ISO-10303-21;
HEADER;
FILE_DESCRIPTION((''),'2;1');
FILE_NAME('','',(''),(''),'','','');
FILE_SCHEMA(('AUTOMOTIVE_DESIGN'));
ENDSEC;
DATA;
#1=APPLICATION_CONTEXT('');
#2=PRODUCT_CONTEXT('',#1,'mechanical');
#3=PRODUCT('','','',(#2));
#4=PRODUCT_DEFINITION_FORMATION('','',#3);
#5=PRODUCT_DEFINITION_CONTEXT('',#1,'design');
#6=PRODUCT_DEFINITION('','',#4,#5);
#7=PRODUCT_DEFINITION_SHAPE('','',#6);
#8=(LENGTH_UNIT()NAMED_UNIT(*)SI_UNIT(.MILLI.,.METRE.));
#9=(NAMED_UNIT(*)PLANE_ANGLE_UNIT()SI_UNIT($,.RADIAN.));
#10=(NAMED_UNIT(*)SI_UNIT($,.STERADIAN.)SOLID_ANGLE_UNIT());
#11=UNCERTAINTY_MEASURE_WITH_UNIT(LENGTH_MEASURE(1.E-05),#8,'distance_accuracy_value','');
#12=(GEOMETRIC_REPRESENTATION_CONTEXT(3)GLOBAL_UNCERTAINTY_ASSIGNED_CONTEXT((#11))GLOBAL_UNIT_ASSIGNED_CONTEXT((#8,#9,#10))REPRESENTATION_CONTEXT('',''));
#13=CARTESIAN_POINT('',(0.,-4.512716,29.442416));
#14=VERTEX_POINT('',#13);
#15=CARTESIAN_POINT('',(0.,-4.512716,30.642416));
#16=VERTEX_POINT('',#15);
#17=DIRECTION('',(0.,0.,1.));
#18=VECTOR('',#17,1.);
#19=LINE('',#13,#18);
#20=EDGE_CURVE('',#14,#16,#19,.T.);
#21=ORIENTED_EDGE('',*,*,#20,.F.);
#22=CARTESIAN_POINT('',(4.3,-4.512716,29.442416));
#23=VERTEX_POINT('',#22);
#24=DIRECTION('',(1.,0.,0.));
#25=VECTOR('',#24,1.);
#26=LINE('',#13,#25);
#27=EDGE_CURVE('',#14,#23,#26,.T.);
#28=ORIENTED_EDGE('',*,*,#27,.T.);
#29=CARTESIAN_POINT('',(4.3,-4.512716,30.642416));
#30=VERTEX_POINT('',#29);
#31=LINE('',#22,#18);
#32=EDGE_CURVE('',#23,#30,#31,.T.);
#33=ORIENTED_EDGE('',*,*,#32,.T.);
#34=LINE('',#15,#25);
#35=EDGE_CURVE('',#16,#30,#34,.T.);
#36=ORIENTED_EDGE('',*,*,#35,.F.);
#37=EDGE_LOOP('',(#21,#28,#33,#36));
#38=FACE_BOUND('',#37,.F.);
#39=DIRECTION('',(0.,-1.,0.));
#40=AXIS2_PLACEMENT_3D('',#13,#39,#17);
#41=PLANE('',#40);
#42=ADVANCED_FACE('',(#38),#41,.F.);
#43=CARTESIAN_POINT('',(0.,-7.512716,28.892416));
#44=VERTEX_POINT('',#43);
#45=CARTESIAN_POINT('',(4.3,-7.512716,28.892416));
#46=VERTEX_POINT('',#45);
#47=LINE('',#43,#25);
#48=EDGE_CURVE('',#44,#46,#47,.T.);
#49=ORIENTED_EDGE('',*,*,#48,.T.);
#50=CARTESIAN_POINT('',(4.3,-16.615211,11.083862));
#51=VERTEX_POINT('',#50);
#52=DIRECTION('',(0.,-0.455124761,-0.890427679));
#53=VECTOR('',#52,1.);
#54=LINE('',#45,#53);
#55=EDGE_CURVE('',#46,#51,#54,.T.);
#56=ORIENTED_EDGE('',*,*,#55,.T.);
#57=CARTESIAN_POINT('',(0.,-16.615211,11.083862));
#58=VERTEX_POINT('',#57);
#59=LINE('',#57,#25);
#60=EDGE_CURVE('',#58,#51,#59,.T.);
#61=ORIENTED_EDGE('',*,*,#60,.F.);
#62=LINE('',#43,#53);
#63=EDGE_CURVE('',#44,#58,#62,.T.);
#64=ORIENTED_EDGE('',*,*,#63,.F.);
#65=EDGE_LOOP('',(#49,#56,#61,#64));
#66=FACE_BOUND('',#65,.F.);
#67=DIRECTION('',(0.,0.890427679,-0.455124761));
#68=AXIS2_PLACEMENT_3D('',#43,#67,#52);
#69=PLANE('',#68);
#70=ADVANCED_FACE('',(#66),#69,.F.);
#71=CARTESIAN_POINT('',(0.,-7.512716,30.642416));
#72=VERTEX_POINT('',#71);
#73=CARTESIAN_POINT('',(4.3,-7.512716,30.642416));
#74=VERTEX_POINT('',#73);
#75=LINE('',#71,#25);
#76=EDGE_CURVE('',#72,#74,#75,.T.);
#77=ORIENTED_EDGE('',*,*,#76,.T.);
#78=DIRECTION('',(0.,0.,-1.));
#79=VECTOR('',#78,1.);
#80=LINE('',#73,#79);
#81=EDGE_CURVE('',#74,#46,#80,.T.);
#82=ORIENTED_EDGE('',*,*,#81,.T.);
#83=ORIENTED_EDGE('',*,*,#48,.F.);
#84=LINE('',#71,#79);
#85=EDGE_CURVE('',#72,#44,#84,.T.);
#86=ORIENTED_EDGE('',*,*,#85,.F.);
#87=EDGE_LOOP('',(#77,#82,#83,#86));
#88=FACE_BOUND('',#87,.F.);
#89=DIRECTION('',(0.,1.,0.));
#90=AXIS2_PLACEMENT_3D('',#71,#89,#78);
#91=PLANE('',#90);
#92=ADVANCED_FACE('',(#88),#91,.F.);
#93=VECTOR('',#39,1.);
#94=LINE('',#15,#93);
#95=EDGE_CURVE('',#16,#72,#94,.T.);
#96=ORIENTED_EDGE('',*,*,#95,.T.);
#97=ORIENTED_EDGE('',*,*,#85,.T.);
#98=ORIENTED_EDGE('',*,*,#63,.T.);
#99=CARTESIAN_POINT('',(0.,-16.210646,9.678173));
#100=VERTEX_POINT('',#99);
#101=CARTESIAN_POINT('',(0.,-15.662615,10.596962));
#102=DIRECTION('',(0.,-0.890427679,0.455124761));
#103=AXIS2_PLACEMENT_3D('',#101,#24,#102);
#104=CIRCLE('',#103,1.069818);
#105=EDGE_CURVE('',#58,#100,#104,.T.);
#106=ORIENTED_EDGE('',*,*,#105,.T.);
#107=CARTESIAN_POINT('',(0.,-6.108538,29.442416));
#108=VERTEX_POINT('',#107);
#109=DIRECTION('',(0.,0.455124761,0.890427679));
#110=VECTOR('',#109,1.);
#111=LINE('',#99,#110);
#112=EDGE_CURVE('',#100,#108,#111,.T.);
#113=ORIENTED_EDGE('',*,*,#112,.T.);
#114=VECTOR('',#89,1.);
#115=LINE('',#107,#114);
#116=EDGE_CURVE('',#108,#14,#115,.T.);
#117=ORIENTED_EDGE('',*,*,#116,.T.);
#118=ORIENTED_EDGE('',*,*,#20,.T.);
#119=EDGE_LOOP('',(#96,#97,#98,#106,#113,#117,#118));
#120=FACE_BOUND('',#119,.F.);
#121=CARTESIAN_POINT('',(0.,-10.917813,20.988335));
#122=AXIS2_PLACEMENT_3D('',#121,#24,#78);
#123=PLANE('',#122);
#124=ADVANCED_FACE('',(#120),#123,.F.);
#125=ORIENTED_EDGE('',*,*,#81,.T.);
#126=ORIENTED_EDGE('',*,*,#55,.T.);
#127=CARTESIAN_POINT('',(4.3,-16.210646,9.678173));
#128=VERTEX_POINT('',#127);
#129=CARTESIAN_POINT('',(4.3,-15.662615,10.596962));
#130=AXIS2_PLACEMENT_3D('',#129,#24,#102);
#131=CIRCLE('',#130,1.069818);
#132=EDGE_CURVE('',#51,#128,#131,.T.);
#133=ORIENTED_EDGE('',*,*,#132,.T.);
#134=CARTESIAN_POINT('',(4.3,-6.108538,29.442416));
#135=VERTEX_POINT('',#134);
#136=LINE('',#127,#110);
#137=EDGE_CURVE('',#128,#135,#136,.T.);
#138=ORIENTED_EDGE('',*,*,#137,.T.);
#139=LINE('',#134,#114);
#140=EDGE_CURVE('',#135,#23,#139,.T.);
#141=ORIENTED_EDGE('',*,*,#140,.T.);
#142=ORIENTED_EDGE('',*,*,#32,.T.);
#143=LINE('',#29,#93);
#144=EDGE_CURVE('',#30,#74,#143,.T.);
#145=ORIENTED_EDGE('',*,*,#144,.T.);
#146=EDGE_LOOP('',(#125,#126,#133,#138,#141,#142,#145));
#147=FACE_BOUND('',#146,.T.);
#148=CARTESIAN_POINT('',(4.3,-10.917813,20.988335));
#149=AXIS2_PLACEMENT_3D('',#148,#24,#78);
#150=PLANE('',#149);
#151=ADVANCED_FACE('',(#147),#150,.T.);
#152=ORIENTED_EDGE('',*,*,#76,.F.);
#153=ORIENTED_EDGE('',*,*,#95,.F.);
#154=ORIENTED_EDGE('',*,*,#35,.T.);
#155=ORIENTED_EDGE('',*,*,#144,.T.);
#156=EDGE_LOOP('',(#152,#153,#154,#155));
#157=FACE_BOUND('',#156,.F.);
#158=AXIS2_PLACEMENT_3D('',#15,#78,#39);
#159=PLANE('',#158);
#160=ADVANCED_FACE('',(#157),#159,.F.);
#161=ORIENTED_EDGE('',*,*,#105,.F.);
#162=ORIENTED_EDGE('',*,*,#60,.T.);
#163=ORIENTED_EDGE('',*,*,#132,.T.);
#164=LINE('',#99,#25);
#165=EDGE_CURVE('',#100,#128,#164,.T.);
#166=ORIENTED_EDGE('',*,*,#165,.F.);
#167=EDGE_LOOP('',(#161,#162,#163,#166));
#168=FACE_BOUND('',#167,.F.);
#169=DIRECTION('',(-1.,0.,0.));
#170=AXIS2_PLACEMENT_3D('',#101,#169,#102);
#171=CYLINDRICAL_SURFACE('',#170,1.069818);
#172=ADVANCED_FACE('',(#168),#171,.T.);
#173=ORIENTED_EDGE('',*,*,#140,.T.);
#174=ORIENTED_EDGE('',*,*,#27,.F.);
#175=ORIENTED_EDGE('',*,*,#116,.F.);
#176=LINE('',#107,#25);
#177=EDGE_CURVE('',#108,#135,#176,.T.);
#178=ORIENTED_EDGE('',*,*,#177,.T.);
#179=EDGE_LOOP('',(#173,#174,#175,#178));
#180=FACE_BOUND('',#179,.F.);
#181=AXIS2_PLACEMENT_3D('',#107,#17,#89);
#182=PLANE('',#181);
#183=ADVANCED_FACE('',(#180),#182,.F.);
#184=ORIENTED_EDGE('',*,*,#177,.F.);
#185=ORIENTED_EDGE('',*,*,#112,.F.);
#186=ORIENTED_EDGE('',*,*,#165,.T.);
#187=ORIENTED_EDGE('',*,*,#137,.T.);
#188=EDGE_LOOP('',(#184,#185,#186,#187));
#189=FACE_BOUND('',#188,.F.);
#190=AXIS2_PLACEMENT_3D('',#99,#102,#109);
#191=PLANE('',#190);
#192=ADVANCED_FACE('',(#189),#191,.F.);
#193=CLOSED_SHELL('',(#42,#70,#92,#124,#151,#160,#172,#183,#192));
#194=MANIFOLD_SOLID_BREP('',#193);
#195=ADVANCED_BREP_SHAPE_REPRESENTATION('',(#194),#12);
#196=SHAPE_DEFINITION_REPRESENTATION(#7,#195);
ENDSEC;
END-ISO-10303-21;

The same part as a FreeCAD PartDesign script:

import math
import FreeCAD as App
import Part
import Sketcher

V = App.Vector
Q = App.Units.Quantity

doc = App.newDocument("Part")
body = doc.addObject("PartDesign::Body", "Body")

sketch1 = body.newObject("Sketcher::SketchObject", "Sketch")
sketch1.AttachmentSupport = (doc.getObject("YZ_Plane"), [""])
sketch1.MapMode = "FlatFace"
sketch1.addGeometry([
    Part.ArcOfCircle(Part.Circle(V(-15.7, 10.6, 0), V(0, 0, 1), 1.1), math.radians(153), math.radians(239)),
    Part.LineSegment(V(-16.2, 9.7, 0), V(-6.1, 29.4, 0)),
    Part.LineSegment(V(-6.1, 29.4, 0), V(-4.5, 29.4, 0)),
    Part.LineSegment(V(-4.5, 29.4, 0), V(-4.5, 30.6, 0)),
    Part.LineSegment(V(-4.5, 30.6, 0), V(-7.5, 30.6, 0)),
    Part.LineSegment(V(-7.5, 30.6, 0), V(-7.5, 28.9, 0)),
    Part.LineSegment(V(-7.5, 28.9, 0), V(-16.6, 11.1, 0)),
], False)
sketch1.addConstraint([
    Sketcher.Constraint("Coincident", 0, 2, 1, 1),
    Sketcher.Constraint("Coincident", 1, 2, 2, 1),
    Sketcher.Constraint("Coincident", 2, 2, 3, 1),
    Sketcher.Constraint("Coincident", 3, 2, 4, 1),
    Sketcher.Constraint("Coincident", 4, 2, 5, 1),
    Sketcher.Constraint("Coincident", 5, 2, 6, 1),
    Sketcher.Constraint("Tangent", 6, 2, 0, 1),
    Sketcher.Constraint("Horizontal", 2),
    Sketcher.Constraint("Vertical", 3),
    Sketcher.Constraint("Horizontal", 4),
    Sketcher.Constraint("Vertical", 5),
    Sketcher.Constraint("Parallel", 1, 6),
    Sketcher.Constraint("DistanceX", 4, 2, 4, 1, Q("3 mm")),
    Sketcher.Constraint("Distance", 6, Q("20 mm")),
    Sketcher.Constraint("DistanceY", 3, 1, 3, 2, Q("1.2 mm")),
    Sketcher.Constraint("DistanceY", 5, 2, 5, 1, Q("1.75 mm")),
    Sketcher.Constraint("Radius", 0, Q("1.069818 mm")),
    Sketcher.Constraint("DistanceX", 0, 3, 2, 2, Q("11.1499 mm")),
    Sketcher.Constraint("Distance", 1, Q("22.196349 mm")),
    Sketcher.Constraint("DistanceY", -1, 1, 0, 3, Q("10.596962 mm")),
    Sketcher.Constraint("DistanceX", 6, 2, -1, 1, Q("16.615211 mm")),
])
pad1 = body.newObject("PartDesign::Pad", "Pad")
pad1.Profile = sketch1
pad1.Length = 4.3

doc.recompute()
